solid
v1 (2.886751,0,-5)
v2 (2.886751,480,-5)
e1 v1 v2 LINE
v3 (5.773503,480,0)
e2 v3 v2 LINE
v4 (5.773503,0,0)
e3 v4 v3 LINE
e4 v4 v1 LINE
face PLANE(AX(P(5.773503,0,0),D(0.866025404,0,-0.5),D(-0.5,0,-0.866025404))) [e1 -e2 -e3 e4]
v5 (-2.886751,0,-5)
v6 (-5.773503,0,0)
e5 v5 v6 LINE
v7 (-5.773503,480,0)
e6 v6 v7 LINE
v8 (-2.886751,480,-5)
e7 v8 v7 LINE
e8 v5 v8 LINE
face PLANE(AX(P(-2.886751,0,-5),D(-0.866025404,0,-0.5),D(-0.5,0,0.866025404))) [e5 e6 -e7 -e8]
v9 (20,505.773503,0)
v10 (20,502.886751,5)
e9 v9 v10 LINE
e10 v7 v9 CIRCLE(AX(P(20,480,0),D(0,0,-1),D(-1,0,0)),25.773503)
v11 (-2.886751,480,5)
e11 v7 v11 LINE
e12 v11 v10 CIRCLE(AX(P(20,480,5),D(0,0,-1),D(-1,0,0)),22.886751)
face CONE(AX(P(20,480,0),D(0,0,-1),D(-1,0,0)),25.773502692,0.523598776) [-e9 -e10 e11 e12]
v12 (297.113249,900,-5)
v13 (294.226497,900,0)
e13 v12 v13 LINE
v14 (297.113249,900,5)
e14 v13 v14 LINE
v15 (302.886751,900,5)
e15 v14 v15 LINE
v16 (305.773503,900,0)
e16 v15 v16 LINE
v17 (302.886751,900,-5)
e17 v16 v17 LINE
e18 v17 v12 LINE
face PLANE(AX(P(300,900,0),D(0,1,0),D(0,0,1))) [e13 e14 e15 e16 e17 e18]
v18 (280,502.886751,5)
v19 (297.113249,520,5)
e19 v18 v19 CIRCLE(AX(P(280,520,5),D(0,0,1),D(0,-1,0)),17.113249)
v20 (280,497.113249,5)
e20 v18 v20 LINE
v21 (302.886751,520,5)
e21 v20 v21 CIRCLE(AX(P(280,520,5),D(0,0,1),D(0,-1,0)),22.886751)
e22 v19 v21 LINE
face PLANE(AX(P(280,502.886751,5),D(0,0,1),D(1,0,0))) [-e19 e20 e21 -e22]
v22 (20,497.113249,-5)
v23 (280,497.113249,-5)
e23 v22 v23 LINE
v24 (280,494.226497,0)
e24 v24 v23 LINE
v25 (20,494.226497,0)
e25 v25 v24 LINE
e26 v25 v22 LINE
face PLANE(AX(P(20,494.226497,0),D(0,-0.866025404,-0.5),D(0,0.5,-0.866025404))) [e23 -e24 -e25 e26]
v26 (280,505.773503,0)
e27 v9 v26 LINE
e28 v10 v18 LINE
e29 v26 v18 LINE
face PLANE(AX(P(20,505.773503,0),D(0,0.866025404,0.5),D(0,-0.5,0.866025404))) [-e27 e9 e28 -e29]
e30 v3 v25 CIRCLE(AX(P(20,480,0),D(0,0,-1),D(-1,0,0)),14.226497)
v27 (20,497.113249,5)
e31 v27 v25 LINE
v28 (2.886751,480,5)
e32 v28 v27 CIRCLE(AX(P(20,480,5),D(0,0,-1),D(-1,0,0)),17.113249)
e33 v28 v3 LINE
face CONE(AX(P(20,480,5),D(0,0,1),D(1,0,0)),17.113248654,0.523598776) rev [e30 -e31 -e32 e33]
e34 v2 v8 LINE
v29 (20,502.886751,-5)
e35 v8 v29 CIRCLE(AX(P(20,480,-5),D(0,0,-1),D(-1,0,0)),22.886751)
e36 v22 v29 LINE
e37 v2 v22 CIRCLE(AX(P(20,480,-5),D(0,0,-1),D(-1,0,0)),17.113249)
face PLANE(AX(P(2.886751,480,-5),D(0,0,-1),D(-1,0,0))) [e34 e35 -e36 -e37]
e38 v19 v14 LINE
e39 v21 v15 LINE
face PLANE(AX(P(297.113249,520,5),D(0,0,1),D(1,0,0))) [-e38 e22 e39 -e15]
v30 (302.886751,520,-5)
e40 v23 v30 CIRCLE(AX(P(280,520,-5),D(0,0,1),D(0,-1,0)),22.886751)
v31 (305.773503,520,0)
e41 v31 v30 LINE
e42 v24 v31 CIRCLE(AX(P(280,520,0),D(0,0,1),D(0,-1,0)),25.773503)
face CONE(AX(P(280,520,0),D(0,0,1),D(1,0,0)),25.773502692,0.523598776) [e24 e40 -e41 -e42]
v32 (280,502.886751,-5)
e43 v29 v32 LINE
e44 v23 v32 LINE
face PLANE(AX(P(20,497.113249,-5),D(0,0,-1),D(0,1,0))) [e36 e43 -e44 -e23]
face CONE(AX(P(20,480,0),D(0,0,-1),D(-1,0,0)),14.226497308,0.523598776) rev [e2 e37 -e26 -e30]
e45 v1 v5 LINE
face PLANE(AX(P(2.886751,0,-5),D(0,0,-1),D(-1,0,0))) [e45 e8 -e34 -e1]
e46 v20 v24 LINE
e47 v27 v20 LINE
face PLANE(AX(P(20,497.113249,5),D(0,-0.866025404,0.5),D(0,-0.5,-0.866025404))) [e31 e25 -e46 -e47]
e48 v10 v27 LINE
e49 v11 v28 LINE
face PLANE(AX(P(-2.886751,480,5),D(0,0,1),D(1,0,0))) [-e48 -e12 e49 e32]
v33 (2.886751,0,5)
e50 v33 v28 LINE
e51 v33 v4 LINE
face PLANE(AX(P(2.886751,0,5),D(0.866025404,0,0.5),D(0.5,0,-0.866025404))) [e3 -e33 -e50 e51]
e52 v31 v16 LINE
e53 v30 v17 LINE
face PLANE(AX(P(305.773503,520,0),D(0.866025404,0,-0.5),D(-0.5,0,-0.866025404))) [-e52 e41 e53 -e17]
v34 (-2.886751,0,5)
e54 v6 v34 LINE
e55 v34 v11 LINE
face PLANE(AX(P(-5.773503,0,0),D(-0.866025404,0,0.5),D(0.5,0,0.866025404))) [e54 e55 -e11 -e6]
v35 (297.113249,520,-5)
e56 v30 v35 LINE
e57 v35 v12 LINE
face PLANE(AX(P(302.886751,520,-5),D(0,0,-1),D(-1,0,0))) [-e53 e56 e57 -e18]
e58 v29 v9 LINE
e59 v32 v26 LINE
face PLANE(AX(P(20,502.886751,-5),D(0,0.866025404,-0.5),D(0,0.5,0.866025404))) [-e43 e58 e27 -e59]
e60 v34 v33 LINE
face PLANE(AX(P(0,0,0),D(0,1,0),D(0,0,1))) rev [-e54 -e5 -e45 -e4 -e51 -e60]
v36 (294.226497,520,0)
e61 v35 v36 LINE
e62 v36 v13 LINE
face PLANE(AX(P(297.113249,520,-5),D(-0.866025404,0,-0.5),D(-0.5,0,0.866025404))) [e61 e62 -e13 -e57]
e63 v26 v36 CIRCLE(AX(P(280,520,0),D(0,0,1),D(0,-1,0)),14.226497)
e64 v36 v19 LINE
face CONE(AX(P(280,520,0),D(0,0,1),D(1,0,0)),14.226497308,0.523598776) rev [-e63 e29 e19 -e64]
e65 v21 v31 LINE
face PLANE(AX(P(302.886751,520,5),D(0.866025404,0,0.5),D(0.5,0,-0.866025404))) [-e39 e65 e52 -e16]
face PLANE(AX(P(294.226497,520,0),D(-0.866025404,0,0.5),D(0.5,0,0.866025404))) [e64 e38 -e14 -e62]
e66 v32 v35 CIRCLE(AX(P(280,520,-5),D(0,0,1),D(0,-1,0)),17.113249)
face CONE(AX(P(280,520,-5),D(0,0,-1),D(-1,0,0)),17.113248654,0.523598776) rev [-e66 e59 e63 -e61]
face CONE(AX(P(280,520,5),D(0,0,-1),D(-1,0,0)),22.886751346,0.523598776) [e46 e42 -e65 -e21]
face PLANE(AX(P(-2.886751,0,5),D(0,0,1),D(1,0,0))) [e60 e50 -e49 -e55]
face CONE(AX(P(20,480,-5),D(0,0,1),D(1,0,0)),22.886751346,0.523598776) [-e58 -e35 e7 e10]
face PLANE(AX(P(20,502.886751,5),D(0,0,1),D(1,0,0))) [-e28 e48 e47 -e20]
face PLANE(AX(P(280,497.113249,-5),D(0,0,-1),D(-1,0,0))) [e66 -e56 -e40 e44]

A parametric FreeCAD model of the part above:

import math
import FreeCAD as App
import Part
import Sketcher

V = App.Vector
Q = App.Units.Quantity

doc = App.newDocument("Part")
body = doc.addObject("PartDesign::Body", "Body")

# Sketch on XZ plane
sketch1 = body.newObject("Sketcher::SketchObject", "Sketch")
sketch1.AttachmentSupport = (doc.getObject("XZ_Plane"), [""])
sketch1.MapMode = "FlatFace"
sketch1.addGeometry([
    Part.LineSegment(V(3, -5, 0), V(-3, -5, 0)),  # 0
    Part.LineSegment(V(-3, -5, 0), V(-6, 0, 0)),  # 1
    Part.LineSegment(V(-6, 0, 0), V(-3, 5, 0)),  # 2
    Part.LineSegment(V(-3, 5, 0), V(3, 5, 0)),  # 3
    Part.LineSegment(V(3, 5, 0), V(6, 0, 0)),  # 4
    Part.LineSegment(V(6, 0, 0), V(3, -5, 0)),  # 5
], False)
sketch1.addConstraint([
    Sketcher.Constraint("Coincident", 0, 2, 1, 1),
    Sketcher.Constraint("Coincident", 1, 2, 2, 1),
    Sketcher.Constraint("Coincident", 2, 2, 3, 1),
    Sketcher.Constraint("Coincident", 3, 2, 4, 1),
    Sketcher.Constraint("Coincident", 4, 2, 5, 1),
    Sketcher.Constraint("Coincident", 5, 2, 0, 1),
    Sketcher.Constraint("Horizontal", 0),
    Sketcher.Constraint("Horizontal", 3),
    Sketcher.Constraint("Symmetric", 0, 2, 3, 2, -1, 1),
    Sketcher.Constraint("Symmetric", 1, 2, 4, 2, -1, 1),
    Sketcher.Constraint("PointOnObject", 1, 2, -1),
    Sketcher.Constraint("Parallel", 2, 5),
    Sketcher.Constraint("Vertical", 0, 2, 2, 2),
    Sketcher.Constraint("Angle", 1, Q("120 deg")),
    Sketcher.Constraint("DistanceY", 0, 2, -1, 1, Q("5 mm")),
    Sketcher.Constraint("DistanceX", 0, 2, 0, 1, Q("5.773503 mm")),
])

# Sketch on XY plane
sketch2 = body.newObject("Sketcher::SketchObject", "Sketch001")
sketch2.AttachmentSupport = (doc.getObject("XY_Plane"), [""])
sketch2.MapMode = "FlatFace"
sketch2.addGeometry([
    Part.LineSegment(V(0, 0, 0), V(0, 480, 0)),  # 0
    Part.ArcOfCircle(Part.Circle(V(20, 480, 0), V(0, 0, 1), 20), math.radians(90), math.radians(180)),  # 1
    Part.LineSegment(V(20, 500, 0), V(280, 500, 0)),  # 2
    Part.ArcOfCircle(Part.Circle(V(280, 520, 0), V(0, 0, 1), 20), math.radians(-90), math.radians(0)),  # 3
    Part.LineSegment(V(300, 520, 0), V(300, 900, 0)),  # 4
], False)
sketch2.addConstraint([
    Sketcher.Constraint("Tangent", 0, 2, 1, 2),
    Sketcher.Constraint("Tangent", 1, 1, 2, 1),
    Sketcher.Constraint("Tangent", 2, 2, 3, 1),
    Sketcher.Constraint("Tangent", 3, 2, 4, 1),
    Sketcher.Constraint("Vertical", 0),
    Sketcher.Constraint("Horizontal", 2),
    Sketcher.Constraint("Vertical", 4),
    Sketcher.Constraint("Coincident", 0, 1, -1, 1),
    Sketcher.Constraint("Equal", 1, 3),
    Sketcher.Constraint("Radius", 1, Q("20 mm")),
    Sketcher.Constraint("DistanceX", 2, 1, 2, 2, Q("260 mm")),
    Sketcher.Constraint("DistanceY", 0, 1, 0, 2, Q("480 mm")),
    Sketcher.Constraint("DistanceY", 4, 1, 4, 2, Q("380 mm")),
])
doc.recompute()

additivepipe = body.newObject("PartDesign::AdditivePipe", "AdditivePipe")
additivepipe.Profile = sketch1
additivepipe.Spine = (sketch2, ["Edge1", "Edge2", "Edge3", "Edge4", "Edge5"])

doc.recompute()
